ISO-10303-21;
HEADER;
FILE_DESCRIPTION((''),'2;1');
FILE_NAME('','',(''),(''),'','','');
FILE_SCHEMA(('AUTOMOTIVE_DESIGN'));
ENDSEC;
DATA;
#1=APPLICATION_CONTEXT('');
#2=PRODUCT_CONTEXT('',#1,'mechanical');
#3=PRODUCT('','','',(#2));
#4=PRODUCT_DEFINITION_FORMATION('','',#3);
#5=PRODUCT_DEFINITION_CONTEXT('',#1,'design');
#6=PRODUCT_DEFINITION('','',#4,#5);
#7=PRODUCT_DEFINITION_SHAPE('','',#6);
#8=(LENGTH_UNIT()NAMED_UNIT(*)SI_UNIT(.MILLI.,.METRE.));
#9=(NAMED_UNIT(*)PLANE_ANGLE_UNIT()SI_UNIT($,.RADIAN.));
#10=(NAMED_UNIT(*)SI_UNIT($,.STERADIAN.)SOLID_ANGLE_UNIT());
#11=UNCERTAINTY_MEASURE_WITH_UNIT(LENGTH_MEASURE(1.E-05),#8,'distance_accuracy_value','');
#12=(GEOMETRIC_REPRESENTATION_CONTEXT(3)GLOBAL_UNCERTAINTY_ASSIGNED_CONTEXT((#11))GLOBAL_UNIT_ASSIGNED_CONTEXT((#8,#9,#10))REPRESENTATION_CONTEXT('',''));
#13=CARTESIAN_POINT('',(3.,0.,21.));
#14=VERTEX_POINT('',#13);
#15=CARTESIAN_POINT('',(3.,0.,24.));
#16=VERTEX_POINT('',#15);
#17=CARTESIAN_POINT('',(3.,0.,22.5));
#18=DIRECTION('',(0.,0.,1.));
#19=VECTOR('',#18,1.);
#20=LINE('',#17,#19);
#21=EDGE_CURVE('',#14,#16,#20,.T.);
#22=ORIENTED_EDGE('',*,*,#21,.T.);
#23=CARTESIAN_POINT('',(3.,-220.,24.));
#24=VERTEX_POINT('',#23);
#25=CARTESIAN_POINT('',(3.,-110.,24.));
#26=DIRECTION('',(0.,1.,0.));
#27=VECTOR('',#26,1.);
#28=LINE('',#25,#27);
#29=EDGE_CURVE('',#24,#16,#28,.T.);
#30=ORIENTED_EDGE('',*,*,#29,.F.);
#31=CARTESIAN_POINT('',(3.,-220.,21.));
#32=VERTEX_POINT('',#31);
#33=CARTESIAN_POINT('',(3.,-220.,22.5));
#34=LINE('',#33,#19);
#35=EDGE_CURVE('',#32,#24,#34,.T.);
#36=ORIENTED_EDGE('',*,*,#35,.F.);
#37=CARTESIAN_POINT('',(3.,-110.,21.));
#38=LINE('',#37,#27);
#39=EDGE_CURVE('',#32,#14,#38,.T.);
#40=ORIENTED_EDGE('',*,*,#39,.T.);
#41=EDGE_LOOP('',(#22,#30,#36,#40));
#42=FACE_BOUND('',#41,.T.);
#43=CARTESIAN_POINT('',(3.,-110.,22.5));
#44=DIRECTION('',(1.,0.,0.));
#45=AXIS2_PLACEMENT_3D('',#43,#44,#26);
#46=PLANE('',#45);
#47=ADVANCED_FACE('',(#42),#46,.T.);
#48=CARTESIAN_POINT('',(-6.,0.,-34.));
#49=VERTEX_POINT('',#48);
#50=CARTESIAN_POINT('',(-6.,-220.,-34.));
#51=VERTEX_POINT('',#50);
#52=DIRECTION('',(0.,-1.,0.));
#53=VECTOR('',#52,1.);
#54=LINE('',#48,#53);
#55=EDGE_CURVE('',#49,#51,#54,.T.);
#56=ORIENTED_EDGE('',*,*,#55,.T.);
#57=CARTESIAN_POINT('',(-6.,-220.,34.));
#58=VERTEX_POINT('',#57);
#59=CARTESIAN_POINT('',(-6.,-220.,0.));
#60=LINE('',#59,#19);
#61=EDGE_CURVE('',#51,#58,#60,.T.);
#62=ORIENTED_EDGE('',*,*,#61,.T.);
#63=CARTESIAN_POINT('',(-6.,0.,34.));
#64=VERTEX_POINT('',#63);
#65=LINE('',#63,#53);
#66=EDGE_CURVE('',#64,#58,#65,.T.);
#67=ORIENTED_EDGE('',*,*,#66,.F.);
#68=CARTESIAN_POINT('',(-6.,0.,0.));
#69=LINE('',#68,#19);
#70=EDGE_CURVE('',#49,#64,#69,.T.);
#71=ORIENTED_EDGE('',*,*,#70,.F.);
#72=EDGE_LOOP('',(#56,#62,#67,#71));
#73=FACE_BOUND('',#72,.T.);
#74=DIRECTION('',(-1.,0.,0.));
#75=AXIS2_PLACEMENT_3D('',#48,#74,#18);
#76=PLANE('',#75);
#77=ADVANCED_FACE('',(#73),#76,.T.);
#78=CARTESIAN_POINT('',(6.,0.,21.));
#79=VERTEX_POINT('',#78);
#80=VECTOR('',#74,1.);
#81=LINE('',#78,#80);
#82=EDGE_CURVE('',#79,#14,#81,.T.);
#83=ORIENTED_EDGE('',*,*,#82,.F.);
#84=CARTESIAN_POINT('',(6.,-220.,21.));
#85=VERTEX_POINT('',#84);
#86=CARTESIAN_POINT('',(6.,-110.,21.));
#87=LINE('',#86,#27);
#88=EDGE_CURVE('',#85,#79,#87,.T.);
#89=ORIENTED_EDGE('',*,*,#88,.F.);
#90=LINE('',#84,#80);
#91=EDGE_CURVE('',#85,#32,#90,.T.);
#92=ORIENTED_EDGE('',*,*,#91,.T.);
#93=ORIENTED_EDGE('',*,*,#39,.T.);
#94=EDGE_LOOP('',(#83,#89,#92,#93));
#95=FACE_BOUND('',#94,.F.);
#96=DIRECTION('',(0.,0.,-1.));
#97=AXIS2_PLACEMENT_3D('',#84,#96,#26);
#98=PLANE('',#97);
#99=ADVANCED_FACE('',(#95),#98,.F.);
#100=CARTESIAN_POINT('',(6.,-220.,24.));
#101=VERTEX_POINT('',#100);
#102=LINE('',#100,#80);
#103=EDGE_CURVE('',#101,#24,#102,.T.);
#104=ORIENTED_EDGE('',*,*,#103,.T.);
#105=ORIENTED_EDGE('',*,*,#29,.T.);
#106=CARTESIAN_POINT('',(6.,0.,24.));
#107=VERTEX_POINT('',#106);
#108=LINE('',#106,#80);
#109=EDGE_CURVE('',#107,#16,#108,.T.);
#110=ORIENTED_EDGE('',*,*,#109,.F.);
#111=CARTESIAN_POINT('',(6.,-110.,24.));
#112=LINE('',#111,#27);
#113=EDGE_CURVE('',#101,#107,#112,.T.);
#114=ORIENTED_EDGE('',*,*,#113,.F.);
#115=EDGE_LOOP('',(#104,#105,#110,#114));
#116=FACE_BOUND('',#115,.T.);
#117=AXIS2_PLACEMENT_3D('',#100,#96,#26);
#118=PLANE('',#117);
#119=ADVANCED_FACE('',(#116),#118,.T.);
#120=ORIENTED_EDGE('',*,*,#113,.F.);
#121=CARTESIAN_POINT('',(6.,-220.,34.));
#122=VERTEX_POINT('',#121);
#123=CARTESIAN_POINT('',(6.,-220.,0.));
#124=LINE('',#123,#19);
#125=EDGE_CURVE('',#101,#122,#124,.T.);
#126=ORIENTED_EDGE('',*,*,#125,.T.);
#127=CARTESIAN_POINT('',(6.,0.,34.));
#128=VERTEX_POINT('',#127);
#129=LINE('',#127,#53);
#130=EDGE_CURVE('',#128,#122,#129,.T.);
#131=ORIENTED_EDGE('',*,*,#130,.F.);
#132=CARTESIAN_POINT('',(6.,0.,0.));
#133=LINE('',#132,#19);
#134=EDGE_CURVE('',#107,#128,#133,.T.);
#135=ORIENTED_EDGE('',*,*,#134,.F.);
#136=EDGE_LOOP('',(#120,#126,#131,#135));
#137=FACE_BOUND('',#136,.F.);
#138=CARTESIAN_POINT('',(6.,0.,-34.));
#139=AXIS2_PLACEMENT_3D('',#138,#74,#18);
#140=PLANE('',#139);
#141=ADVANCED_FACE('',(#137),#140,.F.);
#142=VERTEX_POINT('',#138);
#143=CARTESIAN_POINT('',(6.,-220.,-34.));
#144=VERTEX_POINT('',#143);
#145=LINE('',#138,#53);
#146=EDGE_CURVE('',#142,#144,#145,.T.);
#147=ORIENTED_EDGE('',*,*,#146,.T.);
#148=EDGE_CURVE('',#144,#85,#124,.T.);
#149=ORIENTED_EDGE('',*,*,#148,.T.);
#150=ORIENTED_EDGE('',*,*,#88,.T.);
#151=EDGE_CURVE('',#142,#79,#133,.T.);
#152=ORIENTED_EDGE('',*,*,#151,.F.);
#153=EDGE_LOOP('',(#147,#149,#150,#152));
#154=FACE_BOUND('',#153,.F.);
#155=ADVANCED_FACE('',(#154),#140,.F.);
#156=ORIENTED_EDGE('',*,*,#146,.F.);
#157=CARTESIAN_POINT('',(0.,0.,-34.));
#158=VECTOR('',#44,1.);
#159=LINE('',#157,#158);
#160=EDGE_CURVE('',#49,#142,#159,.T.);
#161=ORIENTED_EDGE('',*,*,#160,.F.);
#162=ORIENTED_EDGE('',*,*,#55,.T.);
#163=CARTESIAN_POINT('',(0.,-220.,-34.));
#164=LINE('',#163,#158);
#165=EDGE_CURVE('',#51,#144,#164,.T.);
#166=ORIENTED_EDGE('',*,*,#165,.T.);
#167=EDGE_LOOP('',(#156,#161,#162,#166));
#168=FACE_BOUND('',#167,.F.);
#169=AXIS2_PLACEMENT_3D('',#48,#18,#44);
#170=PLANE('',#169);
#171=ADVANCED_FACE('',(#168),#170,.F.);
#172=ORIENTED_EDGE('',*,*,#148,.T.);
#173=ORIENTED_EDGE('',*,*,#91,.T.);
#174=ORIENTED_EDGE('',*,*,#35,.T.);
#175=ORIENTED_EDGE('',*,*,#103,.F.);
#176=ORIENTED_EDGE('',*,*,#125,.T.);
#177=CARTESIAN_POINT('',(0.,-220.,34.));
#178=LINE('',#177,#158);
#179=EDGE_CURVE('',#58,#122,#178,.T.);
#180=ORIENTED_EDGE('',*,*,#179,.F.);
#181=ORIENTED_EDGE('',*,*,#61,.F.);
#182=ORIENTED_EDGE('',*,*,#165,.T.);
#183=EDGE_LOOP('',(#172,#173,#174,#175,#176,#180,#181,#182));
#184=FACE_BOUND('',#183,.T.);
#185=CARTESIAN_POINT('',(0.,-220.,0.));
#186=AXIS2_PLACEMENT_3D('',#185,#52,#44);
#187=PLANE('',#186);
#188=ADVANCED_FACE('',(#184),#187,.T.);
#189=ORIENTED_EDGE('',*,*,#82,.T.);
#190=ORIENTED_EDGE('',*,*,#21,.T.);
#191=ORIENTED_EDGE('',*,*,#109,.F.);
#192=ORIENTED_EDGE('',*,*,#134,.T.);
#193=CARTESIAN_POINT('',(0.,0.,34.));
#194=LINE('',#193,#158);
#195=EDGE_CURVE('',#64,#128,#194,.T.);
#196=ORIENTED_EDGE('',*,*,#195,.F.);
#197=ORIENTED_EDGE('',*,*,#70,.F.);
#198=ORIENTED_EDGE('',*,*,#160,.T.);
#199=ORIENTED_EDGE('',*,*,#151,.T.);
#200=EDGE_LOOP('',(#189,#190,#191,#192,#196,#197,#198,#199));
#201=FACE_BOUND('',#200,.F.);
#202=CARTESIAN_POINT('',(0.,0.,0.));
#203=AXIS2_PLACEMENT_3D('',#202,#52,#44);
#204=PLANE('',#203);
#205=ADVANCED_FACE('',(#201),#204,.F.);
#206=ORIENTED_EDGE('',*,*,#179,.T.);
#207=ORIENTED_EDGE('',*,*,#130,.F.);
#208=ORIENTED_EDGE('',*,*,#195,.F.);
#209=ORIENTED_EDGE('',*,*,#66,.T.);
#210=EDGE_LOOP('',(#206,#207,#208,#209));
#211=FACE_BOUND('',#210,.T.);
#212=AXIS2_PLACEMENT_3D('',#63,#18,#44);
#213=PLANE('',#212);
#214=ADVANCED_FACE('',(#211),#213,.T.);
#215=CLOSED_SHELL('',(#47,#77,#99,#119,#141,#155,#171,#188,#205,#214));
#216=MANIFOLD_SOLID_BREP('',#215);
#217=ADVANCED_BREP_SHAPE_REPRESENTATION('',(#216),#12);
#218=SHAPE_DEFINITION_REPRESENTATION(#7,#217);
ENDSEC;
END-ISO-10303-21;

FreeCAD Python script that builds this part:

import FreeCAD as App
import Part
import Sketcher
from FreeCAD import Vector

doc = App.newDocument("Part")
body = doc.addObject("PartDesign::Body", "Body")

# Sketch on XZ plane
sketch1 = doc.addObject("Sketcher::SketchObject", "Sketch")
body.addObject(sketch1)
sketch1.AttachmentSupport = (doc.XZ_Plane, [""])
sketch1.MapMode = "FlatFace"
sketch1.addGeometry([
    Part.LineSegment(Vector(-110, 34, 0), Vector(-110, -34, 0)),
    Part.LineSegment(Vector(-110, -34, 0), Vector(110, -34, 0)),
    Part.LineSegment(Vector(110, -34, 0), Vector(110, 34, 0)),
    Part.LineSegment(Vector(110, 34, 0), Vector(-110, 34, 0)),
], False)
sketch1.addConstraint([
    Sketcher.Constraint("Coincident", 0, 2, 1, 1),
    Sketcher.Constraint("Coincident", 1, 2, 2, 1),
    Sketcher.Constraint("Coincident", 2, 2, 3, 1),
    Sketcher.Constraint("Coincident", 3, 2, 0, 1),
    Sketcher.Constraint("Vertical", 0),
    Sketcher.Constraint("Horizontal", 1),
    Sketcher.Constraint("Vertical", 2),
    Sketcher.Constraint("Horizontal", 3),
    Sketcher.Constraint("Symmetric", 0, 2, 2, 2, -1, 1),
    Sketcher.Constraint("DistanceX", 1, 1, 1, 2, 220.0),
    Sketcher.Constraint("DistanceY", 0, 2, 0, 1, 68.0),
])
pad1 = doc.addObject("PartDesign::Pad", "Pad")
body.addObject(pad1)
pad1.Profile = sketch1
pad1.Length = 12

# Sketch on YZ plane
sketch2 = doc.addObject("Sketcher::SketchObject", "Sketch001")
body.addObject(sketch2)
sketch2.AttachmentSupport = (doc.YZ_Plane, [""])
sketch2.MapMode = "FlatFace"
sketch2.AttachmentOffset = App.Placement(Vector(0, 0, 110), App.Rotation())
sketch2.addGeometry([
    Part.LineSegment(Vector(-3, 24, 0), Vector(-3, 21, 0)),
    Part.LineSegment(Vector(-3, 21, 0), Vector(0, 21, 0)),
    Part.LineSegment(Vector(0, 21, 0), Vector(0, 24, 0)),
    Part.LineSegment(Vector(0, 24, 0), Vector(-3, 24, 0)),
], False)
sketch2.addConstraint([
    Sketcher.Constraint("Coincident", 0, 2, 1, 1),
    Sketcher.Constraint("Coincident", 1, 2, 2, 1),
    Sketcher.Constraint("Coincident", 2, 2, 3, 1),
    Sketcher.Constraint("Coincident", 3, 2, 0, 1),
    Sketcher.Constraint("Vertical", 0),
    Sketcher.Constraint("Horizontal", 1),
    Sketcher.Constraint("Vertical", 2),
    Sketcher.Constraint("Horizontal", 3),
    Sketcher.Constraint("PointOnObject", 1, 2, -2),
    Sketcher.Constraint("Equal", 3, 0),
    Sketcher.Constraint("DistanceX", 1, 1, 1, 2, 3.0),
    Sketcher.Constraint("DistanceY", -1, 1, 0, 2, 21.0),
])
pocket1 = doc.addObject("PartDesign::Pocket", "Pocket")
body.addObject(pocket1)
pocket1.Profile = sketch2
pocket1.Length = 300
body2 = doc.addObject("PartDesign::Body", "Body001")

# Sketch on XZ plane
sketch3 = doc.addObject("Sketcher::SketchObject", "Sketch002")
body2.addObject(sketch3)
sketch3.AttachmentSupport = (doc.getObject("XZ_Plane001"), [""])
sketch3.MapMode = "FlatFace"
sketch3.addGeometry([
    Part.LineSegment(Vector(-6, 34, 0), Vector(-6, -34, 0)),
    Part.LineSegment(Vector(-6, -34, 0), Vector(6, -34, 0)),
    Part.LineSegment(Vector(6, -34, 0), Vector(6, 34, 0)),
    Part.LineSegment(Vector(6, 34, 0), Vector(-6, 34, 0)),
], False)
sketch3.addConstraint([
    Sketcher.Constraint("Coincident", 0, 2, 1, 1),
    Sketcher.Constraint("Coincident", 1, 2, 2, 1),
    Sketcher.Constraint("Coincident", 2, 2, 3, 1),
    Sketcher.Constraint("Coincident", 3, 2, 0, 1),
    Sketcher.Constraint("Vertical", 0),
    Sketcher.Constraint("Horizontal", 1),
    Sketcher.Constraint("Vertical", 2),
    Sketcher.Constraint("Horizontal", 3),
    Sketcher.Constraint("Symmetric", 0, 2, 2, 2, -1, 1),
    Sketcher.Constraint("DistanceX", 1, 1, 1, 2, 12.0),
    Sketcher.Constraint("DistanceY", 0, 2, 0, 1, 68.0),
])
pad2 = doc.addObject("PartDesign::Pad", "Pad001")
body2.addObject(pad2)
pad2.Profile = sketch3
pad2.Length = 220

# Sketch on YZ plane
sketch4 = doc.addObject("Sketcher::SketchObject", "Sketch003")
body2.addObject(sketch4)
sketch4.AttachmentSupport = (doc.getObject("YZ_Plane001"), [""])
sketch4.MapMode = "FlatFace"
sketch4.AttachmentOffset = App.Placement(Vector(0, 0, 6), App.Rotation())
sketch4.addGeometry([
    Part.LineSegment(Vector(-220, 24, 0), Vector(-220, 21, 0)),
    Part.LineSegment(Vector(-220, 21, 0), Vector(0, 21, 0)),
    Part.LineSegment(Vector(0, 21, 0), Vector(0, 24, 0)),
    Part.LineSegment(Vector(0, 24, 0), Vector(-220, 24, 0)),
], False)
sketch4.addConstraint([
    Sketcher.Constraint("Coincident", 0, 2, 1, 1),
    Sketcher.Constraint("Coincident", 1, 2, 2, 1),
    Sketcher.Constraint("Coincident", 2, 2, 3, 1),
    Sketcher.Constraint("Coincident", 3, 2, 0, 1),
    Sketcher.Constraint("Vertical", 0),
    Sketcher.Constraint("Horizontal", 1),
    Sketcher.Constraint("Vertical", 2),
    Sketcher.Constraint("Horizontal", 3),
    Sketcher.Constraint("PointOnObject", 1, 2, -2),
    Sketcher.Constraint("DistanceX", 1, 1, 1, 2, 220.0),
    Sketcher.Constraint("DistanceY", 0, 2, 0, 1, 3.0),
    Sketcher.Constraint("DistanceY", -1, 1, 0, 2, 21.0),
])
pocket2 = doc.addObject("PartDesign::Pocket", "Pocket001")
body2.addObject(pocket2)
pocket2.Profile = sketch4
pocket2.Length = 3
body.Visibility = False

doc.recompute()
